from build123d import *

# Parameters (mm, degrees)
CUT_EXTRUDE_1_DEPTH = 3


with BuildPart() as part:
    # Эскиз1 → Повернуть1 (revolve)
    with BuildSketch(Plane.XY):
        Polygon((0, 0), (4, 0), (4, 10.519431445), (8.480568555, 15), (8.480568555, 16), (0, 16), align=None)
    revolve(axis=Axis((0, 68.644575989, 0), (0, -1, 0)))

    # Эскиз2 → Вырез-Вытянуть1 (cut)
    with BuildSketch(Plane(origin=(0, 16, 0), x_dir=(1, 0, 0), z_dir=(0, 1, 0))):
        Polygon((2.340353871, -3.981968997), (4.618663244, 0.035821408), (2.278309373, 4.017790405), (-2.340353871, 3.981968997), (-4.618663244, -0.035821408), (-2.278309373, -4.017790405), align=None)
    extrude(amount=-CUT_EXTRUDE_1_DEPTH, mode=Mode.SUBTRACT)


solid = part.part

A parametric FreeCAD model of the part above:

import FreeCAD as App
import Part
import Sketcher

V = App.Vector
Q = App.Units.Quantity


def add_polygon(sketch, points):
    """Adds a closed chain of lines whose ends are joined by coincident constraints."""
    first, n = sketch.GeometryCount, len(points)
    for a, b in zip(points, points[1:] + points[:1]):
        sketch.addGeometry(Part.LineSegment(App.Vector(*a, 0), App.Vector(*b, 0)), False)
    for i in range(n):
        sketch.addConstraint(Sketcher.Constraint("Coincident", first + i, 2, first + (i + 1) % n, 1))

doc = App.newDocument("Part")
body = doc.addObject("PartDesign::Body", "Body")

sketch1 = body.newObject("Sketcher::SketchObject", "Sketch")
sketch1.AttachmentSupport = (doc.getObject("XY_Plane"), [""])
sketch1.MapMode = "FlatFace"
add_polygon(sketch1, [(0, 0), (4, 0), (4, 10.519431), (8.480569, 15), (8.480569, 16), (0, 16)])
sketch1.addConstraint(Sketcher.Constraint("Horizontal", 0))
sketch1.addConstraint(Sketcher.Constraint("Vertical", 1))
sketch1.addConstraint(Sketcher.Constraint("Vertical", 3))
sketch1.addConstraint(Sketcher.Constraint("Horizontal", 4))
sketch1.addConstraint(Sketcher.Constraint("Vertical", 5))
sketch1.addConstraint(Sketcher.Constraint("Coincident", 5, 2, -1, 1))
sketch1.addConstraint(Sketcher.Constraint("DistanceX", 0, 1, 0, 2, 4.0))
sketch1.addConstraint(Sketcher.Constraint("DistanceY", 3, 1, 3, 2, 1.0))
sketch1.addConstraint(Sketcher.Constraint("DistanceY", 5, 2, 5, 1, 16.0))
sketch1.addConstraint(Sketcher.Constraint("Angle", 2, Q("45 deg")))
sketch1.addConstraint(Sketcher.Constraint("DistanceX", 4, 2, 4, 1, 8.480569))
revolution = body.newObject("PartDesign::Revolution", "Revolution")
revolution.Profile = sketch1
revolution.ReferenceAxis = (sketch1, ["V_Axis"])
revolution.Angle = 360

sketch2 = body.newObject("Sketcher::SketchObject", "Sketch001")
sketch2.AttachmentSupport = (doc.getObject("XZ_Plane"), [""])
sketch2.MapMode = "FlatFace"
sketch2.AttachmentOffset = App.Placement(V(0, 0, -16), App.Rotation())
add_polygon(sketch2, [(2.340354, 3.981969), (4.618663, -0.035821), (2.278309, -4.01779), (-2.340354, -3.981969), (-4.618663, 0.035821), (-2.278309, 4.01779)])
sketch2.addConstraint(Sketcher.Constraint("Symmetric", 0, 2, 3, 2, -1, 1))
sketch2.addConstraint(Sketcher.Constraint("Symmetric", 1, 2, 4, 2, -1, 1))
sketch2.addConstraint(Sketcher.Constraint("Symmetric", 2, 2, 5, 2, -1, 1))
sketch2.addConstraint(Sketcher.Constraint("Equal", 0, 1))
sketch2.addConstraint(Sketcher.Constraint("Equal", 1, 2))
sketch2.addConstraint(Sketcher.Constraint("DistanceY", 0, 2, -1, 1, 0.035821))
sketch2.addConstraint(Sketcher.Constraint("DistanceX", -1, 1, 1, 2, 2.278309))
sketch2.addConstraint(Sketcher.Constraint("DistanceY", 1, 2, -1, 1, 4.01779))
sketch2.addConstraint(Sketcher.Constraint("DistanceY", 2, 2, -1, 1, 3.981969))
pocket1 = body.newObject("PartDesign::Pocket", "Pocket")
pocket1.Profile = sketch2
pocket1.Length = 3
pocket1.Reversed = True

doc.recompute()
